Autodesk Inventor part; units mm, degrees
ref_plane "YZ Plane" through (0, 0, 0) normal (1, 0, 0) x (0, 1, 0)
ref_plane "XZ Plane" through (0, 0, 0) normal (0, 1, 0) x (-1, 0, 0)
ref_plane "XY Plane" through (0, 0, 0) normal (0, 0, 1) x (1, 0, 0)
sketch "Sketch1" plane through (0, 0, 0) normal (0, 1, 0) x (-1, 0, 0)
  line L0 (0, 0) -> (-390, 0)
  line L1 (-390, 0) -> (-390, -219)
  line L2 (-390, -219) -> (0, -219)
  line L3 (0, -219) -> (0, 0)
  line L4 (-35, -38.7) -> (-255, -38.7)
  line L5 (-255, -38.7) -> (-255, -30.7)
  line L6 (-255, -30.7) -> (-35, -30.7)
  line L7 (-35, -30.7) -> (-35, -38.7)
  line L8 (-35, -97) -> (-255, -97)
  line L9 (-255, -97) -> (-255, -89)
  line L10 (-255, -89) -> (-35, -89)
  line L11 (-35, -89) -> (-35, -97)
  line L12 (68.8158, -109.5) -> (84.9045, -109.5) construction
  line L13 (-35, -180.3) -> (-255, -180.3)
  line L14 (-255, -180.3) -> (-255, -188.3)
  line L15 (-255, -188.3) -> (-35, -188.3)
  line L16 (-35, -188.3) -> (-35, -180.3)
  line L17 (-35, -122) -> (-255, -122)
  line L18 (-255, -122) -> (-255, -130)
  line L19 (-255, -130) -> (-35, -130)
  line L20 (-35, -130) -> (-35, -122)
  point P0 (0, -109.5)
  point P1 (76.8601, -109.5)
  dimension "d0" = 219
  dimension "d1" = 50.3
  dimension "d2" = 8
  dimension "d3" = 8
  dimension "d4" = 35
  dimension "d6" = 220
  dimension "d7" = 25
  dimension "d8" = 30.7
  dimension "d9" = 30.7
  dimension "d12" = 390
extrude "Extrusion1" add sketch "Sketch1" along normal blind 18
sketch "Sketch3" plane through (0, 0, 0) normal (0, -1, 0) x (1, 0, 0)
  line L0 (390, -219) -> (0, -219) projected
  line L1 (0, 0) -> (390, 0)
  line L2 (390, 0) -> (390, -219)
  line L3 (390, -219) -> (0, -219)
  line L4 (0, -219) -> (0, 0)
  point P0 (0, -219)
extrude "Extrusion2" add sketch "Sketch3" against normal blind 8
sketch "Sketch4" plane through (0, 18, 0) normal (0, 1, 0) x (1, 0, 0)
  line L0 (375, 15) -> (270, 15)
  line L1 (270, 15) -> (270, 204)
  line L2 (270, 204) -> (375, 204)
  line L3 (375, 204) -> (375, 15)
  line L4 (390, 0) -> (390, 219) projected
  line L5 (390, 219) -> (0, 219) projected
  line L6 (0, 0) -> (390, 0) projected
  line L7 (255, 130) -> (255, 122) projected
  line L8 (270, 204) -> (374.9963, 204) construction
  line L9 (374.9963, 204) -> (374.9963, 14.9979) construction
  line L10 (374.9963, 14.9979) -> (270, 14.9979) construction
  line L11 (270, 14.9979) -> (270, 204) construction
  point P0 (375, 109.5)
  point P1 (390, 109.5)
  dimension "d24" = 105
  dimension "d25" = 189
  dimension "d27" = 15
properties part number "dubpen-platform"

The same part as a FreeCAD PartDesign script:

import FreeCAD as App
import Part
import Sketcher

V = App.Vector


def add_polygon(sketch, points):
    """Adds a closed chain of lines whose ends are joined by coincident constraints."""
    first, n = sketch.GeometryCount, len(points)
    for a, b in zip(points, points[1:] + points[:1]):
        sketch.addGeometry(Part.LineSegment(App.Vector(*a, 0), App.Vector(*b, 0)), False)
    for i in range(n):
        sketch.addConstraint(Sketcher.Constraint("Coincident", first + i, 2, first + (i + 1) % n, 1))

doc = App.newDocument("Part")
body = doc.addObject("PartDesign::Body", "Body")

# Sketch on XZ plane
sketch1 = doc.addObject("Sketcher::SketchObject", "Sketch")
body.addObject(sketch1)
sketch1.AttachmentSupport = (doc.XZ_Plane, [""])
sketch1.MapMode = "FlatFace"
add_polygon(sketch1, [(0, -219), (0, 0), (390, 0), (390, -219)])  # lines 0-3
add_polygon(sketch1, [(255, -180.3), (35, -180.3), (35, -188.3), (255, -188.3)])  # lines 4-7
add_polygon(sketch1, [(255, -122), (35, -122), (35, -130), (255, -130)])  # lines 8-11
add_polygon(sketch1, [(35, -89), (35, -97), (255, -97), (255, -89)])  # lines 12-15
add_polygon(sketch1, [(35, -30.7), (35, -38.7), (255, -38.7), (255, -30.7)])  # lines 16-19
sketch1.addConstraint([
    Sketcher.Constraint("Vertical", 0),
    Sketcher.Constraint("Horizontal", 1),
    Sketcher.Constraint("Vertical", 2),
    Sketcher.Constraint("Horizontal", 3),
    Sketcher.Constraint("Horizontal", 4),
    Sketcher.Constraint("Vertical", 5),
    Sketcher.Constraint("Horizontal", 6),
    Sketcher.Constraint("Vertical", 7),
    Sketcher.Constraint("Horizontal", 8),
    Sketcher.Constraint("Vertical", 9),
    Sketcher.Constraint("Horizontal", 10),
    Sketcher.Constraint("Vertical", 11),
    Sketcher.Constraint("Vertical", 12),
    Sketcher.Constraint("Horizontal", 13),
    Sketcher.Constraint("Vertical", 14),
    Sketcher.Constraint("Horizontal", 15),
    Sketcher.Constraint("Vertical", 16),
    Sketcher.Constraint("Horizontal", 17),
    Sketcher.Constraint("Vertical", 18),
    Sketcher.Constraint("Horizontal", 19),
    Sketcher.Constraint("Coincident", 0, 2, -1, 1),
    Sketcher.Constraint("Vertical", 5, 2, 8, 2),
    Sketcher.Constraint("Vertical", 7, 2, 10, 2),
    Sketcher.Constraint("Vertical", 9, 2, 12, 2),
    Sketcher.Constraint("Vertical", 11, 2, 13, 2),
    Sketcher.Constraint("Vertical", 15, 2, 16, 2),
    Sketcher.Constraint("Vertical", 14, 2, 17, 2),
    Sketcher.Constraint("Equal", 7, 9),
    Sketcher.Constraint("Equal", 11, 12),
    Sketcher.Constraint("Equal", 14, 16),
    Sketcher.Constraint("DistanceX", 1, 1, 1, 2, 390.0),
    Sketcher.Constraint("DistanceX", 4, 2, 4, 1, 220.0),
    Sketcher.Constraint("DistanceY", 0, 1, 0, 2, 219.0),
    Sketcher.Constraint("DistanceY", 5, 2, 5, 1, 8.0),
    Sketcher.Constraint("DistanceX", -1, 1, 4, 2, 35.0),
    Sketcher.Constraint("DistanceY", 8, 2, 12, 2, 25.0),
    Sketcher.Constraint("DistanceY", 18, 2, -1, 1, 30.7),
    Sketcher.Constraint("DistanceY", 3, 2, 5, 2, 30.7),
    Sketcher.Constraint("DistanceY", 4, 2, 9, 2, 50.3),
])
pad1 = doc.addObject("PartDesign::Pad", "Pad")
body.addObject(pad1)
pad1.Profile = sketch1
pad1.Length = 18
pad1.Reversed = True

# Sketch on XZ plane
sketch2 = doc.addObject("Sketcher::SketchObject", "Sketch001")
body.addObject(sketch2)
sketch2.AttachmentSupport = (doc.XZ_Plane, [""])
sketch2.MapMode = "FlatFace"
add_polygon(sketch2, [(0, -219), (390, -219), (390, 0), (0, 0)])  # lines 0-3
sketch2.addConstraint([
    Sketcher.Constraint("Horizontal", 0),
    Sketcher.Constraint("Vertical", 1),
    Sketcher.Constraint("Horizontal", 2),
    Sketcher.Constraint("Vertical", 3),
    Sketcher.Constraint("Coincident", 2, 2, -1, 1),
    Sketcher.Constraint("DistanceX", 0, 1, 0, 2, 390.0),
    Sketcher.Constraint("DistanceY", 1, 1, 1, 2, 219.0),
])
pad2 = doc.addObject("PartDesign::Pad", "Pad001")
body.addObject(pad2)
pad2.Profile = sketch2
pad2.Length = 8
pad2.Reversed = True

doc.recompute()
